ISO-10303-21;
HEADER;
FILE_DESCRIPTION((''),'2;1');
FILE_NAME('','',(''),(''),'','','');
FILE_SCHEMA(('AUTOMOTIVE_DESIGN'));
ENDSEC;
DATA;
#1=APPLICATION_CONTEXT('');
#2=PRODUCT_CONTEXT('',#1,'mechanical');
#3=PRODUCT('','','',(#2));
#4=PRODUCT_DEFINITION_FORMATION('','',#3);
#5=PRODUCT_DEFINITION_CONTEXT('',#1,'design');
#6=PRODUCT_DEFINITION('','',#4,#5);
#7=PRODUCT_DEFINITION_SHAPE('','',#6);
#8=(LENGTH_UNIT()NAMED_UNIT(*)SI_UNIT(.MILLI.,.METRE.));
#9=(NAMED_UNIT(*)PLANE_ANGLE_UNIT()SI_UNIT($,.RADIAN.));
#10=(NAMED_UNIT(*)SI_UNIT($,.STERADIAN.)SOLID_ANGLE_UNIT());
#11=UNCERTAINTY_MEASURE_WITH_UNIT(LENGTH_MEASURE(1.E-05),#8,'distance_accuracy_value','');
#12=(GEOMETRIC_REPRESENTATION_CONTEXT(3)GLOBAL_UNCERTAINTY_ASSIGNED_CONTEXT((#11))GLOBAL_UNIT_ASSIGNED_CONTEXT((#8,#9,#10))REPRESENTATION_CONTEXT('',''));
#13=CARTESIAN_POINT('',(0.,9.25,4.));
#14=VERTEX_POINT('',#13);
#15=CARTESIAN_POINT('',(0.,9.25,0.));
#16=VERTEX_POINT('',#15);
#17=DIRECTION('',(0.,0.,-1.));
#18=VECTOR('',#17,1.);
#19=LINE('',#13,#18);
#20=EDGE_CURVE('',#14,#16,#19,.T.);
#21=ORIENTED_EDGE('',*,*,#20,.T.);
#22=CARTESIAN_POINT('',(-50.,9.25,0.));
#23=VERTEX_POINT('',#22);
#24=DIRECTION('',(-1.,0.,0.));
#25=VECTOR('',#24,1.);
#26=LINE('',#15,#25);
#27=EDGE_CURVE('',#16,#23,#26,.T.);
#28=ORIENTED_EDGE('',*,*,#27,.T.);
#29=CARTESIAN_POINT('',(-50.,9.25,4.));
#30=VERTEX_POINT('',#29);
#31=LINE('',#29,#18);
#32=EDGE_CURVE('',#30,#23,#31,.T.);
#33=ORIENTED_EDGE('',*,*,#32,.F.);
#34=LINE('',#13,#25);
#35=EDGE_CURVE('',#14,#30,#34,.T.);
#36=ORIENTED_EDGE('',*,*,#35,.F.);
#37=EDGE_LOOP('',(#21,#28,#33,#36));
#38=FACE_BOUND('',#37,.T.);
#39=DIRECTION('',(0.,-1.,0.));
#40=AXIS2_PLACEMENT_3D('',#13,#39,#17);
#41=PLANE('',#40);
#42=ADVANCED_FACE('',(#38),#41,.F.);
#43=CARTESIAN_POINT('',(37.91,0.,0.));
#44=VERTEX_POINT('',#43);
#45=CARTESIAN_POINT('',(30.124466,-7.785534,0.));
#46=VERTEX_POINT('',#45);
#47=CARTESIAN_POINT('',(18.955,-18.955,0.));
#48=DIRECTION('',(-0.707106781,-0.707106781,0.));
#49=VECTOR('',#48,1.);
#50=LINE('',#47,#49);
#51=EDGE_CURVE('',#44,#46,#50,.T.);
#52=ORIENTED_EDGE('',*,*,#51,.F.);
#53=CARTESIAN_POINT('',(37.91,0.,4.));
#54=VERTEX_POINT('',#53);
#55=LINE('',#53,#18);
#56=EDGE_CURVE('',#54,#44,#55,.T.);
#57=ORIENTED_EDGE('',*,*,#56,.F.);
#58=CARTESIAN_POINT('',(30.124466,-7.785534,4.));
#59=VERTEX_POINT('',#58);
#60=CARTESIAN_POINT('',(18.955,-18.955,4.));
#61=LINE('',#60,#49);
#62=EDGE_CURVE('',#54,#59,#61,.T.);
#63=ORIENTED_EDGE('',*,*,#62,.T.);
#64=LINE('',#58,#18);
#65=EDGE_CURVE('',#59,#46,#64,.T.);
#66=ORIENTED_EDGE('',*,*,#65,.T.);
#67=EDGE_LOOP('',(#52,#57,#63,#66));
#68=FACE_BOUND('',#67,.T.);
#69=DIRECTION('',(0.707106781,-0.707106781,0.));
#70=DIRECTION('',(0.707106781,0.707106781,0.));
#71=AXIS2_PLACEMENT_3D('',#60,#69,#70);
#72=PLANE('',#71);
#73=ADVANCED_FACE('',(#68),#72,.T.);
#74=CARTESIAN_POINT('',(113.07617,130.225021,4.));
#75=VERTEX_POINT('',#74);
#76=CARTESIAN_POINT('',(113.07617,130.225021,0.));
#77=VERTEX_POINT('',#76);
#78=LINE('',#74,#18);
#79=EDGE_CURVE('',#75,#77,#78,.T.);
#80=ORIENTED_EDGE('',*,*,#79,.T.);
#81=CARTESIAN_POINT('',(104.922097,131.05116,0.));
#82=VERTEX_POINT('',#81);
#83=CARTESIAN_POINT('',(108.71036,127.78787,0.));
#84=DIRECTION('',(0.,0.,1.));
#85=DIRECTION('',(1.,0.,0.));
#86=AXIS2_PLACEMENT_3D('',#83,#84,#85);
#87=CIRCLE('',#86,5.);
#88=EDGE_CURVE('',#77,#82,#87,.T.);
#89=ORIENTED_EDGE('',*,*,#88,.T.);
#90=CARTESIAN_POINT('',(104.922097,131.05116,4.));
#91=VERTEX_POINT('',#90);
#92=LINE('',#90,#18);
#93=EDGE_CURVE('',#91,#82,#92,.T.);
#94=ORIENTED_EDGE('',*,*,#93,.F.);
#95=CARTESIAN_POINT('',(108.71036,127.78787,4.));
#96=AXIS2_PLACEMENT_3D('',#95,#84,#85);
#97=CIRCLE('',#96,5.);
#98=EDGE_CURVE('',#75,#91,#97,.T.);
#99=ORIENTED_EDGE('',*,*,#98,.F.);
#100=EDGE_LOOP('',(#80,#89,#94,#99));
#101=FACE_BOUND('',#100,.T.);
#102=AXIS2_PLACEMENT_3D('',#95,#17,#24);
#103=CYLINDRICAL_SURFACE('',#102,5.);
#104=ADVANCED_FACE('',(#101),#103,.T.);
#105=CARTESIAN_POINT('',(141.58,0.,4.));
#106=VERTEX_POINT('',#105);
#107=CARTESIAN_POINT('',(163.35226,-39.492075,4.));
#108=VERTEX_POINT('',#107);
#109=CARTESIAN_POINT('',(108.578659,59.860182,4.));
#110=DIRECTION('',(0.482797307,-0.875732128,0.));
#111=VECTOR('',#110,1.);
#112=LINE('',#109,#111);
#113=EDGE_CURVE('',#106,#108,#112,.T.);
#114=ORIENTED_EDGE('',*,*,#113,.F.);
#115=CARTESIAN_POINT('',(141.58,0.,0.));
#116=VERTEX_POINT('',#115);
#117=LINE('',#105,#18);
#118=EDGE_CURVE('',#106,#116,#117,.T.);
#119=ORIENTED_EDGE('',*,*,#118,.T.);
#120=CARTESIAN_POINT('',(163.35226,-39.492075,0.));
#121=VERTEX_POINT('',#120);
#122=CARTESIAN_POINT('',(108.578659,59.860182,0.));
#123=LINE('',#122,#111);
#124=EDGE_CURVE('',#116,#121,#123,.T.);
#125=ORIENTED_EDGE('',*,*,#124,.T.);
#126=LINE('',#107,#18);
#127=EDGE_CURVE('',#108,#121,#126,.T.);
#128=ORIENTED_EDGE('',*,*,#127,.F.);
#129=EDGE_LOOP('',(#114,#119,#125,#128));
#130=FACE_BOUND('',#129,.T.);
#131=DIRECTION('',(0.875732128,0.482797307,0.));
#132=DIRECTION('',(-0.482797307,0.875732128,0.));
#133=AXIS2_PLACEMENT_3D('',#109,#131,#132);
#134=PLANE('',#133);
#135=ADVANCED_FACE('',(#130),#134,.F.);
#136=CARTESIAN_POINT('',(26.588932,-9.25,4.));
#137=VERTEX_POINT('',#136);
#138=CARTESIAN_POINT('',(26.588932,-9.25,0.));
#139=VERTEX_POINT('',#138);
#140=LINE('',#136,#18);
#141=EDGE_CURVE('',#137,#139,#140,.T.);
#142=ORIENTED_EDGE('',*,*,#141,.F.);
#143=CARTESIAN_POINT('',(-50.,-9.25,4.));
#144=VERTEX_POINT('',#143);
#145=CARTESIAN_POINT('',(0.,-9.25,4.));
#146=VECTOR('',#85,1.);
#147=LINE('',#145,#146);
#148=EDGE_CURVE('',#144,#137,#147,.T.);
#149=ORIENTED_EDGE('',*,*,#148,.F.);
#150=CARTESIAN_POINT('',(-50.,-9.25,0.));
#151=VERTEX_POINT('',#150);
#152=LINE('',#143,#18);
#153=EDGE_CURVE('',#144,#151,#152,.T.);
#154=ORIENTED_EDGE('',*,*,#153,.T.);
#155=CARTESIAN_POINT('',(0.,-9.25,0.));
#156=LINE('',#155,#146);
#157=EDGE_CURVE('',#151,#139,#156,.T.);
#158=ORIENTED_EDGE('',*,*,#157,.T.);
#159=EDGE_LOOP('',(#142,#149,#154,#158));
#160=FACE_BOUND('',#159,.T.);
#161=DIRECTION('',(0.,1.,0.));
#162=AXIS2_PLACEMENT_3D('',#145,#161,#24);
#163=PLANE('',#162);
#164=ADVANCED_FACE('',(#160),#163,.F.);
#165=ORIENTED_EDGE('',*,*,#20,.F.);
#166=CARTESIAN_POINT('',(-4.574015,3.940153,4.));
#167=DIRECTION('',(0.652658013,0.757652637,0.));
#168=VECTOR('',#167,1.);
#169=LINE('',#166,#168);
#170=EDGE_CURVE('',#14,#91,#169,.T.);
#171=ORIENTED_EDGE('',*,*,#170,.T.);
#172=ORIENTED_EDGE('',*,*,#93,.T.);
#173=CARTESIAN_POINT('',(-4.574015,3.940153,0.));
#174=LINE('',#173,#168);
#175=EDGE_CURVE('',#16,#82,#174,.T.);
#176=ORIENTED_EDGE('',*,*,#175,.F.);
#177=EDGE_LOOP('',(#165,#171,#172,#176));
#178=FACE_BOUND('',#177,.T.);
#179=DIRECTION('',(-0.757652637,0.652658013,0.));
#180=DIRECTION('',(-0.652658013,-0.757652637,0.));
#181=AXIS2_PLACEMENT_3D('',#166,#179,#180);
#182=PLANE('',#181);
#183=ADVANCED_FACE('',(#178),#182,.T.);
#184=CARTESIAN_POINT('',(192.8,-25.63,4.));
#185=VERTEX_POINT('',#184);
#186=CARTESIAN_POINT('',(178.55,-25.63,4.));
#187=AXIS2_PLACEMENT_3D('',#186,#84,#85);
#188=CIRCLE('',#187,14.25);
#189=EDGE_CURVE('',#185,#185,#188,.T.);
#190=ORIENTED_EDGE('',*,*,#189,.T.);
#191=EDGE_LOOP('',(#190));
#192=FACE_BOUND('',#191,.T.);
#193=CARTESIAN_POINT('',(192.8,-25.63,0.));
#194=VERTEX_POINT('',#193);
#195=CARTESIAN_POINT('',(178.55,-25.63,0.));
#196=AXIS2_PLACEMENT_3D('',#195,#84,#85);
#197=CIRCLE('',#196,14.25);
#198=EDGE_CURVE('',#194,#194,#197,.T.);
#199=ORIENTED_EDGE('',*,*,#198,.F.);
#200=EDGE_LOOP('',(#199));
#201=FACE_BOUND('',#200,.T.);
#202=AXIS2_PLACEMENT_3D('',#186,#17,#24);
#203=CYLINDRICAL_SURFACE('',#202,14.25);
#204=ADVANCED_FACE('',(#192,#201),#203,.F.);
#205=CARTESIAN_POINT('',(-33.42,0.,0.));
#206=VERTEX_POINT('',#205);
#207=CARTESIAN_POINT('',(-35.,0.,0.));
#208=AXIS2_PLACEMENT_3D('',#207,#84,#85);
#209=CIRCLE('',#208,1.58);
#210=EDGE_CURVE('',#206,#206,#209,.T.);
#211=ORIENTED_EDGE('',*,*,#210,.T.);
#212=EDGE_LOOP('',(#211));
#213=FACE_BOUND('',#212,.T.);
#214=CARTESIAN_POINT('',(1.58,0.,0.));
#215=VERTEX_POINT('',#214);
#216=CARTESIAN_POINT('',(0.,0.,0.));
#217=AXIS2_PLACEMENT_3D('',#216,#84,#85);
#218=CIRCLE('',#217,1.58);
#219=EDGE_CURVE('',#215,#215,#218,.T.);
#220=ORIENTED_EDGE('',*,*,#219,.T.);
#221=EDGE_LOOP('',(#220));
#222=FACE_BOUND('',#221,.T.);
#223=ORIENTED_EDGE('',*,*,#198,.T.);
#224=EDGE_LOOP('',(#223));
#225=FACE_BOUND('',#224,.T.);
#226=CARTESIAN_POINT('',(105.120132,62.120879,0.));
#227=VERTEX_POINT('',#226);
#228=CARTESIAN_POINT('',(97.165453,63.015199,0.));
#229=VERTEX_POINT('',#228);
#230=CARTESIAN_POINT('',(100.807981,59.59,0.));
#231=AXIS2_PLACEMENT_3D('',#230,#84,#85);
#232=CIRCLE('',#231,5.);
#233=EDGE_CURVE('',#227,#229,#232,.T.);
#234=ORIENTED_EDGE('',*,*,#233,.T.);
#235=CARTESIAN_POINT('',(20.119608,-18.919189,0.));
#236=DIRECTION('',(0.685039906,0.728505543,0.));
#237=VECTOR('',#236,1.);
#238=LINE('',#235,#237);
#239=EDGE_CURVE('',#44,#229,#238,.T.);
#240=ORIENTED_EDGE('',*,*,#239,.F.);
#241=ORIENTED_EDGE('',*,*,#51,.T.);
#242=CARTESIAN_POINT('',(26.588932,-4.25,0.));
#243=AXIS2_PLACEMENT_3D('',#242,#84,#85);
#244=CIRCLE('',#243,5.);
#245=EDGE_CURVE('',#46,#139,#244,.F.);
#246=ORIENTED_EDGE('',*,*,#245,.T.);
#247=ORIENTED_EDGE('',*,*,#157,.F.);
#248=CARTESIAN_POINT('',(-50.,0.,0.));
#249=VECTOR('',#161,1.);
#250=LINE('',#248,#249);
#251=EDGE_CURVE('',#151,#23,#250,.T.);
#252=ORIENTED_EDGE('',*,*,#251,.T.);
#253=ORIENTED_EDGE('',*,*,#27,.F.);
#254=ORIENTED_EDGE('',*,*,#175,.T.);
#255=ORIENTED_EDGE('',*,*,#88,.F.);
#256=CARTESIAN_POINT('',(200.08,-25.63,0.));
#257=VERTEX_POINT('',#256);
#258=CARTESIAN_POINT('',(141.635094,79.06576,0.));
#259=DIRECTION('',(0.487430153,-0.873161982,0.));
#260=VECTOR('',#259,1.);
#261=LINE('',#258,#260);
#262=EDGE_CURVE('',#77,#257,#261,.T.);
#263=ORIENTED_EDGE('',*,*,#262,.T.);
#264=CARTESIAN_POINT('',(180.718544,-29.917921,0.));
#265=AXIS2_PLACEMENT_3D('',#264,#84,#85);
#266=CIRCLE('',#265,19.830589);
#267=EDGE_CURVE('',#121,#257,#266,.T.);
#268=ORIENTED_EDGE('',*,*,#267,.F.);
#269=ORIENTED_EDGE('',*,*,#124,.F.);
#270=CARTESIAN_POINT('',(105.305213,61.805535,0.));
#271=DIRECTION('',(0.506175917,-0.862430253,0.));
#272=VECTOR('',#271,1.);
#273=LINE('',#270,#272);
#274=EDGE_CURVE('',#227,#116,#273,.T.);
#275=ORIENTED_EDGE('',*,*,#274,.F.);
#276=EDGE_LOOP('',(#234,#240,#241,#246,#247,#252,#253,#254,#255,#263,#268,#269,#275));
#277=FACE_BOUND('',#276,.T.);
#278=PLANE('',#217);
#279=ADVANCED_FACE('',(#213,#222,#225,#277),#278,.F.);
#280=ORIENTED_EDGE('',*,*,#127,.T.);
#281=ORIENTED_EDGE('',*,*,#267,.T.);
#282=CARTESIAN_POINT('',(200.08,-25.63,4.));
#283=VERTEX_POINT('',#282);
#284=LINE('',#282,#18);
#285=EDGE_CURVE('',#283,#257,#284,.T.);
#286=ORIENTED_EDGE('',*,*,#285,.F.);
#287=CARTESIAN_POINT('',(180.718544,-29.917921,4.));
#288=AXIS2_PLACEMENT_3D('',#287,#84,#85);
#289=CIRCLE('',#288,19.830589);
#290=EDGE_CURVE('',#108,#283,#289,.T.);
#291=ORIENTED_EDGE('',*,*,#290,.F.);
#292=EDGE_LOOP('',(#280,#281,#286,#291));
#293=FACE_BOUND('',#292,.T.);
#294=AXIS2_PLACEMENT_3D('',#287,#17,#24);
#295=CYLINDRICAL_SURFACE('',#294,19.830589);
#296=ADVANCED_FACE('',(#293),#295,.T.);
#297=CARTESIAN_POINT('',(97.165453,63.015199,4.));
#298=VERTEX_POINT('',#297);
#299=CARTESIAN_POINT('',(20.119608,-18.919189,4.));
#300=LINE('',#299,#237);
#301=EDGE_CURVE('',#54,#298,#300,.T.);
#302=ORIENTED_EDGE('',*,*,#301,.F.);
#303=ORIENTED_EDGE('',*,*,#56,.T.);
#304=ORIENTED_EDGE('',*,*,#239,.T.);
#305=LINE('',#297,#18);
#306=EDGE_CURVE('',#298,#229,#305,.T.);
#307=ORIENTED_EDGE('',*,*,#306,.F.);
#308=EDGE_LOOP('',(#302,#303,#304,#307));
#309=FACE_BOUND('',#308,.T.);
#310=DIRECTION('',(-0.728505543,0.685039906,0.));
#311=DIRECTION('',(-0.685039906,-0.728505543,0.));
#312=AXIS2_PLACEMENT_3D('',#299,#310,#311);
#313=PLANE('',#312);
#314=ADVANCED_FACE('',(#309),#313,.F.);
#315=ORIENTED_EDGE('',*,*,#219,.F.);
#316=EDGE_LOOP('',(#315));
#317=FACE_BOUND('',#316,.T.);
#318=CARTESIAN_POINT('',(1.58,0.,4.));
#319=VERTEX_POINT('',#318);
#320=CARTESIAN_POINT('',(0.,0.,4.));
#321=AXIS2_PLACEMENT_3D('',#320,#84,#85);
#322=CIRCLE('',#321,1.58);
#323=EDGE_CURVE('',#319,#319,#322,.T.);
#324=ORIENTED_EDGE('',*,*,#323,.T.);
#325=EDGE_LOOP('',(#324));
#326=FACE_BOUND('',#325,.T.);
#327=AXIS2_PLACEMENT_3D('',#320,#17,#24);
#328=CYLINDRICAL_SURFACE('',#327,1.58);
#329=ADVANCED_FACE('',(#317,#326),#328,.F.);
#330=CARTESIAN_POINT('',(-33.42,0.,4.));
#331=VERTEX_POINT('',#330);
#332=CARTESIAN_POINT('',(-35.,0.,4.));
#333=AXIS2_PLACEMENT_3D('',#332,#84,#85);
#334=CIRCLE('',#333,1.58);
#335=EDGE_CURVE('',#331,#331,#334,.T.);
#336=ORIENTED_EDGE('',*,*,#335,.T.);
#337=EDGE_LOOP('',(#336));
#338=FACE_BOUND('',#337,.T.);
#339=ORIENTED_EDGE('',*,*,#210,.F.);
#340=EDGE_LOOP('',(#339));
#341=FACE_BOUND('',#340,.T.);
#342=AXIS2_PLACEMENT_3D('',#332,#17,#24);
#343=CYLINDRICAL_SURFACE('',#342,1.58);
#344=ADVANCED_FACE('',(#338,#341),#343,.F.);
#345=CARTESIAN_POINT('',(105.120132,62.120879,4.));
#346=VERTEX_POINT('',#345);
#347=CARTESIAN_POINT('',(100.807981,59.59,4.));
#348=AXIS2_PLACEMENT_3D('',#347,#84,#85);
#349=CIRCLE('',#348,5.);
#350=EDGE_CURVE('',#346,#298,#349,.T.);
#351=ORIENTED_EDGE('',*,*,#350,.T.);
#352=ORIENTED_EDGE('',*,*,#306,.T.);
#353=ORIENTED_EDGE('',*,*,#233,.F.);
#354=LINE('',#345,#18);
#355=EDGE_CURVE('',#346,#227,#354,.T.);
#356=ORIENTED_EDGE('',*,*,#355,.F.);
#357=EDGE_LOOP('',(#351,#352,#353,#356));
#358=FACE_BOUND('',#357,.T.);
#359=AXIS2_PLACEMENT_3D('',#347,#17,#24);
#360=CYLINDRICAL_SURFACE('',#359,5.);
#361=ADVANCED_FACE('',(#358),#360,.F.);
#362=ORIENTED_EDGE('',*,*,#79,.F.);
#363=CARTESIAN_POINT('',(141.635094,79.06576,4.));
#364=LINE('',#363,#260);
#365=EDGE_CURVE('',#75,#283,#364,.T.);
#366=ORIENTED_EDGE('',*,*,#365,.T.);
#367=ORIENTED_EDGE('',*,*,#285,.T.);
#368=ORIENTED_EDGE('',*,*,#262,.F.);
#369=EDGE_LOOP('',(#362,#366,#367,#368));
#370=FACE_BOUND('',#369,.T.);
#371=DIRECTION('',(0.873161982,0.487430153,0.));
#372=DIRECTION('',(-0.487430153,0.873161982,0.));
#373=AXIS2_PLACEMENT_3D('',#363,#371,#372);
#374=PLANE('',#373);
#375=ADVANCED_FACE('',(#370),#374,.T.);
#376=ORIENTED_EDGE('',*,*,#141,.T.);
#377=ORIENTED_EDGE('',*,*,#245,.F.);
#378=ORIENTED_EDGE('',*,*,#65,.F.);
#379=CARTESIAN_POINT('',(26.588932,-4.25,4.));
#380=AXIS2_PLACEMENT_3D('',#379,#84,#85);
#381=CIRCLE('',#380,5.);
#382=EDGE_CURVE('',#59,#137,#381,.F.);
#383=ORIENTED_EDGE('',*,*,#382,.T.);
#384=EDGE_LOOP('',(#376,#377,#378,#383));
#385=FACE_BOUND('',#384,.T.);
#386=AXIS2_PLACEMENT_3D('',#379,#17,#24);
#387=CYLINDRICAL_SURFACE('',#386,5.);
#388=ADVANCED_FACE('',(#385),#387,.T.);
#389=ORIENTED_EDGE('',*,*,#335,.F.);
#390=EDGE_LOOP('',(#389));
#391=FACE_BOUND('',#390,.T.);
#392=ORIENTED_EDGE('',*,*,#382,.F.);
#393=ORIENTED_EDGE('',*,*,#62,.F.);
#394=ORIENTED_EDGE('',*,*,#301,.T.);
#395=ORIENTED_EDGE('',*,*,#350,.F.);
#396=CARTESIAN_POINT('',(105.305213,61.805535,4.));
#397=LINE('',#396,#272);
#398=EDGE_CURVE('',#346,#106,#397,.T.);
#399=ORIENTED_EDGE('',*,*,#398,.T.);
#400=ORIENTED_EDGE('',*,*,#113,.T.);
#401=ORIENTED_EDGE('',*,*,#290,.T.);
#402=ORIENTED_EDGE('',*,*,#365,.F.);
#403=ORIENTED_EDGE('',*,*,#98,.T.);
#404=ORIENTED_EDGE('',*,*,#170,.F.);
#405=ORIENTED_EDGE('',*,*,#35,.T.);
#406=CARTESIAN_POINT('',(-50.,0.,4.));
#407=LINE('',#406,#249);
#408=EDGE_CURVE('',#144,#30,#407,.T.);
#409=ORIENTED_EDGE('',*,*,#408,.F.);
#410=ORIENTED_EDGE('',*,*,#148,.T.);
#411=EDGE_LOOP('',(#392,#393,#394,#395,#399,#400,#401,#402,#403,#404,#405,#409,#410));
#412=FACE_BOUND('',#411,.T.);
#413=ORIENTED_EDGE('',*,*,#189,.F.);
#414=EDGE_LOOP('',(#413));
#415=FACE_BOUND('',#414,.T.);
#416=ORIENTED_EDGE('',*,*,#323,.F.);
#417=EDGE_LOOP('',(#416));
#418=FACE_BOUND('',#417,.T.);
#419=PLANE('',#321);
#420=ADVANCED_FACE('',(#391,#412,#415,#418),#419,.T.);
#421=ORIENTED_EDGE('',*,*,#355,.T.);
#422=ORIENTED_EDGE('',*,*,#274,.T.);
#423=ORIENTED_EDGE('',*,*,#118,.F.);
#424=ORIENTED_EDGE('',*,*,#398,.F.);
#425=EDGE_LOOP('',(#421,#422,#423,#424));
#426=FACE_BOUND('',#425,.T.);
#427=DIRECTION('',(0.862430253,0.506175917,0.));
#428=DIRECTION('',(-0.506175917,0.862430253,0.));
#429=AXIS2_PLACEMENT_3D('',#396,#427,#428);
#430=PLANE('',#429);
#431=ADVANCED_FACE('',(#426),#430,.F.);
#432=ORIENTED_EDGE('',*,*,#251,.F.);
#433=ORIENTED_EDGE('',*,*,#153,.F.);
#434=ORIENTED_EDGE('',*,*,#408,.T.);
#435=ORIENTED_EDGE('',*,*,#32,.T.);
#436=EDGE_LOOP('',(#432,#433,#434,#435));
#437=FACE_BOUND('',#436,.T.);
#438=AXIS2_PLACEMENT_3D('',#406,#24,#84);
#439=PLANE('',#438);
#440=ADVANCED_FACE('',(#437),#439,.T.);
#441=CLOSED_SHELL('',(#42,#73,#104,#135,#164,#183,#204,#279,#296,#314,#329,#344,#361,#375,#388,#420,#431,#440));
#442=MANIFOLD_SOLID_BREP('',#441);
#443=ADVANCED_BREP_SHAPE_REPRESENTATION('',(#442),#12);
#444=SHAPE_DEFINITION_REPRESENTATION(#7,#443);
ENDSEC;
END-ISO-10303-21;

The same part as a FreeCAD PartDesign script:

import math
import FreeCAD as App
import Part
import Sketcher
from FreeCAD import Vector
Q = App.Units.Quantity

doc = App.newDocument("Part")
body = doc.addObject("PartDesign::Body", "Body")

# Sketch on XY plane
sketch1 = body.newObject("Sketcher::SketchObject", "Sketch")
sketch1.AttachmentSupport = (doc.getObject("XY_Plane"), [""])
sketch1.MapMode = "FlatFace"
sketch1.addGeometry([
    Part.LineSegment(Vector(30.1, -7.8, 0), Vector(37.9, 0, 0)),  # 0
    Part.LineSegment(Vector(37.9, 0, 0), Vector(97.2, 63, 0)),  # 1
    Part.ArcOfCircle(Part.Circle(Vector(100.8, 59.6, 0), Vector(0, 0, 1), 5), math.radians(30), math.radians(137)),  # 2
    Part.LineSegment(Vector(105.1, 62.1, 0), Vector(141.6, 0, 0)),  # 3
    Part.LineSegment(Vector(141.6, 0, 0), Vector(153.8, -22.2, 0)),  # 4
    Part.LineSegment(Vector(153.8, -22.2, 0), Vector(155.7, -25.6, 0)),  # 5
    Part.LineSegment(Vector(155.7, -25.6, 0), Vector(163.4, -39.5, 0)),  # 6
    Part.ArcOfCircle(Part.Circle(Vector(180.7, -29.9, 0), Vector(0, 0, 1), 19.8), math.radians(-151), math.radians(12)),  # 7
    Part.LineSegment(Vector(200.1, -25.6, 0), Vector(113.1, 130.2, 0)),  # 8
    Part.ArcOfCircle(Part.Circle(Vector(108.7, 127.8, 0), Vector(0, 0, 1), 5), math.radians(29), math.radians(139)),  # 9
    Part.LineSegment(Vector(104.9, 131.1, 0), Vector(0, 9.2, 0)),  # 10
    Part.LineSegment(Vector(0, 9.2, 0), Vector(-50, 9.2, 0)),  # 11
    Part.LineSegment(Vector(-50, 9.2, 0), Vector(-50, -9.2, 0)),  # 12
    Part.LineSegment(Vector(-50, -9.2, 0), Vector(26.6, -9.2, 0)),  # 13
    Part.ArcOfCircle(Part.Circle(Vector(26.6, -4.3, 0), Vector(0, 0, 1), 5), math.radians(-90), math.radians(-45)),  # 14
    Part.Circle(Vector(178.6, -25.6, 0), Vector(0, 0, 1), 14.2),  # 15
    Part.Circle(Vector(-35, 0, 0), Vector(0, 0, 1), 1.6),  # 16
    Part.Circle(Vector(0, 0, 0), Vector(0, 0, 1), 1.6),  # 17
], False)
sketch1.addConstraint([
    Sketcher.Constraint("Coincident", 0, 2, 1, 1),
    Sketcher.Constraint("Tangent", 1, 2, 2, 2),
    Sketcher.Constraint("Tangent", 2, 1, 3, 1),
    Sketcher.Constraint("Coincident", 3, 2, 4, 1),
    Sketcher.Constraint("Coincident", 4, 2, 5, 1),
    Sketcher.Constraint("Coincident", 5, 2, 6, 1),
    Sketcher.Constraint("Tangent", 6, 2, 7, 1),
    Sketcher.Constraint("Coincident", 7, 2, 8, 1),
    Sketcher.Constraint("Tangent", 8, 2, 9, 1),
    Sketcher.Constraint("Tangent", 9, 2, 10, 1),
    Sketcher.Constraint("Coincident", 10, 2, 11, 1),
    Sketcher.Constraint("Coincident", 11, 2, 12, 1),
    Sketcher.Constraint("Coincident", 12, 2, 13, 1),
    Sketcher.Constraint("Tangent", 13, 2, 14, 1),
    Sketcher.Constraint("Tangent", 14, 2, 0, 1),
    Sketcher.Constraint("Horizontal", 11),
    Sketcher.Constraint("Vertical", 12),
    Sketcher.Constraint("Horizontal", 13),
    Sketcher.Constraint("Coincident", 17, 3, -1, 1),
    Sketcher.Constraint("Equal", 2, 9),
    Sketcher.Constraint("Equal", 9, 14),
    Sketcher.Constraint("Equal", 16, 17),
    Sketcher.Constraint("PointOnObject", 16, 3, -1),
    Sketcher.Constraint("PointOnObject", 0, 2, -1),
    Sketcher.Constraint("PointOnObject", 3, 2, -1),
    Sketcher.Constraint("PointOnObject", 10, 2, -2),
    Sketcher.Constraint("Parallel", 4, 5),
    Sketcher.Constraint("Parallel", 5, 6),
    Sketcher.Constraint("Horizontal", 15, 3, 5, 2),
    Sketcher.Constraint("Horizontal", 5, 2, 7, 2),
    Sketcher.Constraint("Radius", 2, 5.0),
    Sketcher.Constraint("Diameter", 15, 28.5),
    Sketcher.Constraint("Diameter", 16, 3.16),
    Sketcher.Constraint("DistanceX", 11, 2, 11, 1, 50.0),
    Sketcher.Constraint("Angle", 0, Q("45 deg")),
    Sketcher.Constraint("DistanceY", 12, 2, 12, 1, 18.5),
    Sketcher.Constraint("DistanceX", 16, 3, -1, 1, 35.0),
    Sketcher.Constraint("DistanceY", -1, 1, 2, 3, 59.59),
    Sketcher.Constraint("DistanceY", 14, 3, -1, 1, 4.25),
    Sketcher.Constraint("DistanceX", -1, 1, 15, 3, 178.55),
    Sketcher.Constraint("DistanceY", 15, 3, -1, 1, 25.63),
    Sketcher.Constraint("DistanceX", -1, 1, 0, 2, 37.91),
    Sketcher.Constraint("DistanceX", -1, 1, 3, 2, 141.58),
    Sketcher.Constraint("DistanceX", -1, 1, 5, 2, 155.71),
    Sketcher.Constraint("DistanceX", -1, 1, 7, 2, 200.08),
    Sketcher.Constraint("Radius", 7, 19.830589),
    Sketcher.Constraint("DistanceY", -1, 1, 1, 2, 63.015199),
    Sketcher.Constraint("Distance", 5, 3.957158),
    Sketcher.Constraint("Distance", 8, 178.494969),
    Sketcher.Constraint("DistanceX", -1, 1, 9, 3, 108.71036),
])
pad1 = body.newObject("PartDesign::Pad", "Pad")
pad1.Profile = sketch1
pad1.Length = 4

doc.recompute()
